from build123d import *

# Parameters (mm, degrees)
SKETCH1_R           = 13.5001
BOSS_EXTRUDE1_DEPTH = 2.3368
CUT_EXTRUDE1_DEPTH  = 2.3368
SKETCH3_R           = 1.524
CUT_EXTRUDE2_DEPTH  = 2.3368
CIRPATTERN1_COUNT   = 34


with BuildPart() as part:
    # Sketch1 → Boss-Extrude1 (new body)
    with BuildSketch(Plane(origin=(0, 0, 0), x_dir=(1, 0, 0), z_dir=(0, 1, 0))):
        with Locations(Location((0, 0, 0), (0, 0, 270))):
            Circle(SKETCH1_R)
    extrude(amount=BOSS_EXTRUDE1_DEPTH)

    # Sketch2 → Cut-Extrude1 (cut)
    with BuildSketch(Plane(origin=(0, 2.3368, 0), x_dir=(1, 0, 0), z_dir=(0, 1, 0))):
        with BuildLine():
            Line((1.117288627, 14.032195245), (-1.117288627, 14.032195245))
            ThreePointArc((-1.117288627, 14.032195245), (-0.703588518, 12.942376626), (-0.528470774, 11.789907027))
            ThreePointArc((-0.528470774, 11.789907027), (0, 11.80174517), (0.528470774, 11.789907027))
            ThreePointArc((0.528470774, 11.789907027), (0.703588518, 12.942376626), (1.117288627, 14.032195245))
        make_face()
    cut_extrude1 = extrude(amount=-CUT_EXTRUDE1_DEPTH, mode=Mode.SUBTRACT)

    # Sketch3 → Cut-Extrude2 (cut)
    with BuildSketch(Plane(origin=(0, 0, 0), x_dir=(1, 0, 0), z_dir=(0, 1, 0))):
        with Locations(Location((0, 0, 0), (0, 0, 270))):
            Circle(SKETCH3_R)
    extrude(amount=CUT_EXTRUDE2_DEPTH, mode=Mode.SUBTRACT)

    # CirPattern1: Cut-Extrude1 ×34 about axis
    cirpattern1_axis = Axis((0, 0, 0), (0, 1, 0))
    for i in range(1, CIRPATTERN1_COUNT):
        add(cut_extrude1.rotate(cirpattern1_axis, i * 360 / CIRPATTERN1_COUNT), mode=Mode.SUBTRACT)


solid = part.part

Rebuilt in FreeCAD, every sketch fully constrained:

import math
import FreeCAD as App
import Part
import Sketcher

V = App.Vector
Q = App.Units.Quantity

doc = App.newDocument("Part")
body = doc.addObject("PartDesign::Body", "Body")

sketch1 = body.newObject("Sketcher::SketchObject", "Sketch")
sketch1.AttachmentSupport = (doc.getObject("XZ_Plane"), [""])
sketch1.MapMode = "FlatFace"
sketch1.addGeometry(Part.Circle(V(0, 0, 0), V(0, 0, 1), 13.5001), False)
sketch1.addConstraint([
    Sketcher.Constraint("Coincident", 0, 3, -1, 1),
    Sketcher.Constraint("Diameter", 0, Q("1.063 in")),
])
pad1 = body.newObject("PartDesign::Pad", "Pad")
pad1.Profile = sketch1
pad1.Length = Q("0.092 in")
pad1.Reversed = True

sketch2 = body.newObject("Sketcher::SketchObject", "Sketch001")
sketch2.AttachmentSupport = (doc.getObject("XZ_Plane"), [""])
sketch2.MapMode = "FlatFace"
sketch2.AttachmentOffset = App.Placement(V(0, 0, -0.092 * 25.4), App.Rotation())
sketch2.addGeometry([
    Part.LineSegment(V(1.117289, -14.032195, 0), V(-1.117289, -14.032195, 0)),
    Part.ArcOfCircle(Part.Circle(V(-6.031704, -11.54323, 0), V(0, 0, 1), 5.508759), math.radians(-26.860484), math.radians(-2.566508)),
    Part.ArcOfCircle(Part.Circle(V(0, 0, 0), V(0, 0, 1), 11.801745), math.radians(-92.566508), math.radians(-87.433492)),
    Part.ArcOfCircle(Part.Circle(V(6.031704, -11.54323, 0), V(0, 0, 1), 5.508759), math.radians(-177.433492), math.radians(-153.139516)),
], False)
sketch2.addConstraint([
    Sketcher.Constraint("Coincident", 0, 2, 1, 1),
    Sketcher.Constraint("Coincident", 1, 2, 2, 1),
    Sketcher.Constraint("Coincident", 2, 2, 3, 1),
    Sketcher.Constraint("Coincident", 3, 2, 0, 1),
    Sketcher.Constraint("Horizontal", 0),
    Sketcher.Constraint("Coincident", 2, 3, -1, 1),
    Sketcher.Constraint("Equal", 1, 3),
    Sketcher.Constraint("Symmetric", 1, 3, 3, 3, -2),
    Sketcher.Constraint("Radius", 1, Q("5.508759 mm")),
    Sketcher.Constraint("Radius", 2, Q("11.801745 mm")),
    Sketcher.Constraint("DistanceX", 0, 2, 0, 1, Q("2.234577 mm")),
    Sketcher.Constraint("DistanceY", 1, 3, -1, 1, Q("11.54323 mm")),
    Sketcher.Constraint("DistanceX", 1, 2, -1, 1, Q("0.528471 mm")),
])
pocket1 = body.newObject("PartDesign::Pocket", "Pocket")
pocket1.Profile = sketch2
pocket1.Length = Q("0.092 in")
pocket1.Reversed = True

sketch3 = body.newObject("Sketcher::SketchObject", "Sketch002")
sketch3.AttachmentSupport = (doc.getObject("XZ_Plane"), [""])
sketch3.MapMode = "FlatFace"
sketch3.addGeometry(Part.Circle(V(0, 0, 0), V(0, 0, 1), 1.524), False)
sketch3.addConstraint([
    Sketcher.Constraint("Coincident", 0, 3, -1, 1),
    Sketcher.Constraint("Diameter", 0, Q("0.12 in")),
])
pocket2 = body.newObject("PartDesign::Pocket", "Pocket001")
pocket2.Profile = sketch3
pocket2.Length = Q("0.092 in")
doc.recompute()

polarpattern = body.newObject("PartDesign::PolarPattern", "PolarPattern")
polarpattern.Originals = [pocket1]
polarpattern.Axis = (doc.getObject("Y_Axis"), [""])
polarpattern.Angle = 360
polarpattern.Occurrences = 34
body.Tip = polarpattern

doc.recompute()
